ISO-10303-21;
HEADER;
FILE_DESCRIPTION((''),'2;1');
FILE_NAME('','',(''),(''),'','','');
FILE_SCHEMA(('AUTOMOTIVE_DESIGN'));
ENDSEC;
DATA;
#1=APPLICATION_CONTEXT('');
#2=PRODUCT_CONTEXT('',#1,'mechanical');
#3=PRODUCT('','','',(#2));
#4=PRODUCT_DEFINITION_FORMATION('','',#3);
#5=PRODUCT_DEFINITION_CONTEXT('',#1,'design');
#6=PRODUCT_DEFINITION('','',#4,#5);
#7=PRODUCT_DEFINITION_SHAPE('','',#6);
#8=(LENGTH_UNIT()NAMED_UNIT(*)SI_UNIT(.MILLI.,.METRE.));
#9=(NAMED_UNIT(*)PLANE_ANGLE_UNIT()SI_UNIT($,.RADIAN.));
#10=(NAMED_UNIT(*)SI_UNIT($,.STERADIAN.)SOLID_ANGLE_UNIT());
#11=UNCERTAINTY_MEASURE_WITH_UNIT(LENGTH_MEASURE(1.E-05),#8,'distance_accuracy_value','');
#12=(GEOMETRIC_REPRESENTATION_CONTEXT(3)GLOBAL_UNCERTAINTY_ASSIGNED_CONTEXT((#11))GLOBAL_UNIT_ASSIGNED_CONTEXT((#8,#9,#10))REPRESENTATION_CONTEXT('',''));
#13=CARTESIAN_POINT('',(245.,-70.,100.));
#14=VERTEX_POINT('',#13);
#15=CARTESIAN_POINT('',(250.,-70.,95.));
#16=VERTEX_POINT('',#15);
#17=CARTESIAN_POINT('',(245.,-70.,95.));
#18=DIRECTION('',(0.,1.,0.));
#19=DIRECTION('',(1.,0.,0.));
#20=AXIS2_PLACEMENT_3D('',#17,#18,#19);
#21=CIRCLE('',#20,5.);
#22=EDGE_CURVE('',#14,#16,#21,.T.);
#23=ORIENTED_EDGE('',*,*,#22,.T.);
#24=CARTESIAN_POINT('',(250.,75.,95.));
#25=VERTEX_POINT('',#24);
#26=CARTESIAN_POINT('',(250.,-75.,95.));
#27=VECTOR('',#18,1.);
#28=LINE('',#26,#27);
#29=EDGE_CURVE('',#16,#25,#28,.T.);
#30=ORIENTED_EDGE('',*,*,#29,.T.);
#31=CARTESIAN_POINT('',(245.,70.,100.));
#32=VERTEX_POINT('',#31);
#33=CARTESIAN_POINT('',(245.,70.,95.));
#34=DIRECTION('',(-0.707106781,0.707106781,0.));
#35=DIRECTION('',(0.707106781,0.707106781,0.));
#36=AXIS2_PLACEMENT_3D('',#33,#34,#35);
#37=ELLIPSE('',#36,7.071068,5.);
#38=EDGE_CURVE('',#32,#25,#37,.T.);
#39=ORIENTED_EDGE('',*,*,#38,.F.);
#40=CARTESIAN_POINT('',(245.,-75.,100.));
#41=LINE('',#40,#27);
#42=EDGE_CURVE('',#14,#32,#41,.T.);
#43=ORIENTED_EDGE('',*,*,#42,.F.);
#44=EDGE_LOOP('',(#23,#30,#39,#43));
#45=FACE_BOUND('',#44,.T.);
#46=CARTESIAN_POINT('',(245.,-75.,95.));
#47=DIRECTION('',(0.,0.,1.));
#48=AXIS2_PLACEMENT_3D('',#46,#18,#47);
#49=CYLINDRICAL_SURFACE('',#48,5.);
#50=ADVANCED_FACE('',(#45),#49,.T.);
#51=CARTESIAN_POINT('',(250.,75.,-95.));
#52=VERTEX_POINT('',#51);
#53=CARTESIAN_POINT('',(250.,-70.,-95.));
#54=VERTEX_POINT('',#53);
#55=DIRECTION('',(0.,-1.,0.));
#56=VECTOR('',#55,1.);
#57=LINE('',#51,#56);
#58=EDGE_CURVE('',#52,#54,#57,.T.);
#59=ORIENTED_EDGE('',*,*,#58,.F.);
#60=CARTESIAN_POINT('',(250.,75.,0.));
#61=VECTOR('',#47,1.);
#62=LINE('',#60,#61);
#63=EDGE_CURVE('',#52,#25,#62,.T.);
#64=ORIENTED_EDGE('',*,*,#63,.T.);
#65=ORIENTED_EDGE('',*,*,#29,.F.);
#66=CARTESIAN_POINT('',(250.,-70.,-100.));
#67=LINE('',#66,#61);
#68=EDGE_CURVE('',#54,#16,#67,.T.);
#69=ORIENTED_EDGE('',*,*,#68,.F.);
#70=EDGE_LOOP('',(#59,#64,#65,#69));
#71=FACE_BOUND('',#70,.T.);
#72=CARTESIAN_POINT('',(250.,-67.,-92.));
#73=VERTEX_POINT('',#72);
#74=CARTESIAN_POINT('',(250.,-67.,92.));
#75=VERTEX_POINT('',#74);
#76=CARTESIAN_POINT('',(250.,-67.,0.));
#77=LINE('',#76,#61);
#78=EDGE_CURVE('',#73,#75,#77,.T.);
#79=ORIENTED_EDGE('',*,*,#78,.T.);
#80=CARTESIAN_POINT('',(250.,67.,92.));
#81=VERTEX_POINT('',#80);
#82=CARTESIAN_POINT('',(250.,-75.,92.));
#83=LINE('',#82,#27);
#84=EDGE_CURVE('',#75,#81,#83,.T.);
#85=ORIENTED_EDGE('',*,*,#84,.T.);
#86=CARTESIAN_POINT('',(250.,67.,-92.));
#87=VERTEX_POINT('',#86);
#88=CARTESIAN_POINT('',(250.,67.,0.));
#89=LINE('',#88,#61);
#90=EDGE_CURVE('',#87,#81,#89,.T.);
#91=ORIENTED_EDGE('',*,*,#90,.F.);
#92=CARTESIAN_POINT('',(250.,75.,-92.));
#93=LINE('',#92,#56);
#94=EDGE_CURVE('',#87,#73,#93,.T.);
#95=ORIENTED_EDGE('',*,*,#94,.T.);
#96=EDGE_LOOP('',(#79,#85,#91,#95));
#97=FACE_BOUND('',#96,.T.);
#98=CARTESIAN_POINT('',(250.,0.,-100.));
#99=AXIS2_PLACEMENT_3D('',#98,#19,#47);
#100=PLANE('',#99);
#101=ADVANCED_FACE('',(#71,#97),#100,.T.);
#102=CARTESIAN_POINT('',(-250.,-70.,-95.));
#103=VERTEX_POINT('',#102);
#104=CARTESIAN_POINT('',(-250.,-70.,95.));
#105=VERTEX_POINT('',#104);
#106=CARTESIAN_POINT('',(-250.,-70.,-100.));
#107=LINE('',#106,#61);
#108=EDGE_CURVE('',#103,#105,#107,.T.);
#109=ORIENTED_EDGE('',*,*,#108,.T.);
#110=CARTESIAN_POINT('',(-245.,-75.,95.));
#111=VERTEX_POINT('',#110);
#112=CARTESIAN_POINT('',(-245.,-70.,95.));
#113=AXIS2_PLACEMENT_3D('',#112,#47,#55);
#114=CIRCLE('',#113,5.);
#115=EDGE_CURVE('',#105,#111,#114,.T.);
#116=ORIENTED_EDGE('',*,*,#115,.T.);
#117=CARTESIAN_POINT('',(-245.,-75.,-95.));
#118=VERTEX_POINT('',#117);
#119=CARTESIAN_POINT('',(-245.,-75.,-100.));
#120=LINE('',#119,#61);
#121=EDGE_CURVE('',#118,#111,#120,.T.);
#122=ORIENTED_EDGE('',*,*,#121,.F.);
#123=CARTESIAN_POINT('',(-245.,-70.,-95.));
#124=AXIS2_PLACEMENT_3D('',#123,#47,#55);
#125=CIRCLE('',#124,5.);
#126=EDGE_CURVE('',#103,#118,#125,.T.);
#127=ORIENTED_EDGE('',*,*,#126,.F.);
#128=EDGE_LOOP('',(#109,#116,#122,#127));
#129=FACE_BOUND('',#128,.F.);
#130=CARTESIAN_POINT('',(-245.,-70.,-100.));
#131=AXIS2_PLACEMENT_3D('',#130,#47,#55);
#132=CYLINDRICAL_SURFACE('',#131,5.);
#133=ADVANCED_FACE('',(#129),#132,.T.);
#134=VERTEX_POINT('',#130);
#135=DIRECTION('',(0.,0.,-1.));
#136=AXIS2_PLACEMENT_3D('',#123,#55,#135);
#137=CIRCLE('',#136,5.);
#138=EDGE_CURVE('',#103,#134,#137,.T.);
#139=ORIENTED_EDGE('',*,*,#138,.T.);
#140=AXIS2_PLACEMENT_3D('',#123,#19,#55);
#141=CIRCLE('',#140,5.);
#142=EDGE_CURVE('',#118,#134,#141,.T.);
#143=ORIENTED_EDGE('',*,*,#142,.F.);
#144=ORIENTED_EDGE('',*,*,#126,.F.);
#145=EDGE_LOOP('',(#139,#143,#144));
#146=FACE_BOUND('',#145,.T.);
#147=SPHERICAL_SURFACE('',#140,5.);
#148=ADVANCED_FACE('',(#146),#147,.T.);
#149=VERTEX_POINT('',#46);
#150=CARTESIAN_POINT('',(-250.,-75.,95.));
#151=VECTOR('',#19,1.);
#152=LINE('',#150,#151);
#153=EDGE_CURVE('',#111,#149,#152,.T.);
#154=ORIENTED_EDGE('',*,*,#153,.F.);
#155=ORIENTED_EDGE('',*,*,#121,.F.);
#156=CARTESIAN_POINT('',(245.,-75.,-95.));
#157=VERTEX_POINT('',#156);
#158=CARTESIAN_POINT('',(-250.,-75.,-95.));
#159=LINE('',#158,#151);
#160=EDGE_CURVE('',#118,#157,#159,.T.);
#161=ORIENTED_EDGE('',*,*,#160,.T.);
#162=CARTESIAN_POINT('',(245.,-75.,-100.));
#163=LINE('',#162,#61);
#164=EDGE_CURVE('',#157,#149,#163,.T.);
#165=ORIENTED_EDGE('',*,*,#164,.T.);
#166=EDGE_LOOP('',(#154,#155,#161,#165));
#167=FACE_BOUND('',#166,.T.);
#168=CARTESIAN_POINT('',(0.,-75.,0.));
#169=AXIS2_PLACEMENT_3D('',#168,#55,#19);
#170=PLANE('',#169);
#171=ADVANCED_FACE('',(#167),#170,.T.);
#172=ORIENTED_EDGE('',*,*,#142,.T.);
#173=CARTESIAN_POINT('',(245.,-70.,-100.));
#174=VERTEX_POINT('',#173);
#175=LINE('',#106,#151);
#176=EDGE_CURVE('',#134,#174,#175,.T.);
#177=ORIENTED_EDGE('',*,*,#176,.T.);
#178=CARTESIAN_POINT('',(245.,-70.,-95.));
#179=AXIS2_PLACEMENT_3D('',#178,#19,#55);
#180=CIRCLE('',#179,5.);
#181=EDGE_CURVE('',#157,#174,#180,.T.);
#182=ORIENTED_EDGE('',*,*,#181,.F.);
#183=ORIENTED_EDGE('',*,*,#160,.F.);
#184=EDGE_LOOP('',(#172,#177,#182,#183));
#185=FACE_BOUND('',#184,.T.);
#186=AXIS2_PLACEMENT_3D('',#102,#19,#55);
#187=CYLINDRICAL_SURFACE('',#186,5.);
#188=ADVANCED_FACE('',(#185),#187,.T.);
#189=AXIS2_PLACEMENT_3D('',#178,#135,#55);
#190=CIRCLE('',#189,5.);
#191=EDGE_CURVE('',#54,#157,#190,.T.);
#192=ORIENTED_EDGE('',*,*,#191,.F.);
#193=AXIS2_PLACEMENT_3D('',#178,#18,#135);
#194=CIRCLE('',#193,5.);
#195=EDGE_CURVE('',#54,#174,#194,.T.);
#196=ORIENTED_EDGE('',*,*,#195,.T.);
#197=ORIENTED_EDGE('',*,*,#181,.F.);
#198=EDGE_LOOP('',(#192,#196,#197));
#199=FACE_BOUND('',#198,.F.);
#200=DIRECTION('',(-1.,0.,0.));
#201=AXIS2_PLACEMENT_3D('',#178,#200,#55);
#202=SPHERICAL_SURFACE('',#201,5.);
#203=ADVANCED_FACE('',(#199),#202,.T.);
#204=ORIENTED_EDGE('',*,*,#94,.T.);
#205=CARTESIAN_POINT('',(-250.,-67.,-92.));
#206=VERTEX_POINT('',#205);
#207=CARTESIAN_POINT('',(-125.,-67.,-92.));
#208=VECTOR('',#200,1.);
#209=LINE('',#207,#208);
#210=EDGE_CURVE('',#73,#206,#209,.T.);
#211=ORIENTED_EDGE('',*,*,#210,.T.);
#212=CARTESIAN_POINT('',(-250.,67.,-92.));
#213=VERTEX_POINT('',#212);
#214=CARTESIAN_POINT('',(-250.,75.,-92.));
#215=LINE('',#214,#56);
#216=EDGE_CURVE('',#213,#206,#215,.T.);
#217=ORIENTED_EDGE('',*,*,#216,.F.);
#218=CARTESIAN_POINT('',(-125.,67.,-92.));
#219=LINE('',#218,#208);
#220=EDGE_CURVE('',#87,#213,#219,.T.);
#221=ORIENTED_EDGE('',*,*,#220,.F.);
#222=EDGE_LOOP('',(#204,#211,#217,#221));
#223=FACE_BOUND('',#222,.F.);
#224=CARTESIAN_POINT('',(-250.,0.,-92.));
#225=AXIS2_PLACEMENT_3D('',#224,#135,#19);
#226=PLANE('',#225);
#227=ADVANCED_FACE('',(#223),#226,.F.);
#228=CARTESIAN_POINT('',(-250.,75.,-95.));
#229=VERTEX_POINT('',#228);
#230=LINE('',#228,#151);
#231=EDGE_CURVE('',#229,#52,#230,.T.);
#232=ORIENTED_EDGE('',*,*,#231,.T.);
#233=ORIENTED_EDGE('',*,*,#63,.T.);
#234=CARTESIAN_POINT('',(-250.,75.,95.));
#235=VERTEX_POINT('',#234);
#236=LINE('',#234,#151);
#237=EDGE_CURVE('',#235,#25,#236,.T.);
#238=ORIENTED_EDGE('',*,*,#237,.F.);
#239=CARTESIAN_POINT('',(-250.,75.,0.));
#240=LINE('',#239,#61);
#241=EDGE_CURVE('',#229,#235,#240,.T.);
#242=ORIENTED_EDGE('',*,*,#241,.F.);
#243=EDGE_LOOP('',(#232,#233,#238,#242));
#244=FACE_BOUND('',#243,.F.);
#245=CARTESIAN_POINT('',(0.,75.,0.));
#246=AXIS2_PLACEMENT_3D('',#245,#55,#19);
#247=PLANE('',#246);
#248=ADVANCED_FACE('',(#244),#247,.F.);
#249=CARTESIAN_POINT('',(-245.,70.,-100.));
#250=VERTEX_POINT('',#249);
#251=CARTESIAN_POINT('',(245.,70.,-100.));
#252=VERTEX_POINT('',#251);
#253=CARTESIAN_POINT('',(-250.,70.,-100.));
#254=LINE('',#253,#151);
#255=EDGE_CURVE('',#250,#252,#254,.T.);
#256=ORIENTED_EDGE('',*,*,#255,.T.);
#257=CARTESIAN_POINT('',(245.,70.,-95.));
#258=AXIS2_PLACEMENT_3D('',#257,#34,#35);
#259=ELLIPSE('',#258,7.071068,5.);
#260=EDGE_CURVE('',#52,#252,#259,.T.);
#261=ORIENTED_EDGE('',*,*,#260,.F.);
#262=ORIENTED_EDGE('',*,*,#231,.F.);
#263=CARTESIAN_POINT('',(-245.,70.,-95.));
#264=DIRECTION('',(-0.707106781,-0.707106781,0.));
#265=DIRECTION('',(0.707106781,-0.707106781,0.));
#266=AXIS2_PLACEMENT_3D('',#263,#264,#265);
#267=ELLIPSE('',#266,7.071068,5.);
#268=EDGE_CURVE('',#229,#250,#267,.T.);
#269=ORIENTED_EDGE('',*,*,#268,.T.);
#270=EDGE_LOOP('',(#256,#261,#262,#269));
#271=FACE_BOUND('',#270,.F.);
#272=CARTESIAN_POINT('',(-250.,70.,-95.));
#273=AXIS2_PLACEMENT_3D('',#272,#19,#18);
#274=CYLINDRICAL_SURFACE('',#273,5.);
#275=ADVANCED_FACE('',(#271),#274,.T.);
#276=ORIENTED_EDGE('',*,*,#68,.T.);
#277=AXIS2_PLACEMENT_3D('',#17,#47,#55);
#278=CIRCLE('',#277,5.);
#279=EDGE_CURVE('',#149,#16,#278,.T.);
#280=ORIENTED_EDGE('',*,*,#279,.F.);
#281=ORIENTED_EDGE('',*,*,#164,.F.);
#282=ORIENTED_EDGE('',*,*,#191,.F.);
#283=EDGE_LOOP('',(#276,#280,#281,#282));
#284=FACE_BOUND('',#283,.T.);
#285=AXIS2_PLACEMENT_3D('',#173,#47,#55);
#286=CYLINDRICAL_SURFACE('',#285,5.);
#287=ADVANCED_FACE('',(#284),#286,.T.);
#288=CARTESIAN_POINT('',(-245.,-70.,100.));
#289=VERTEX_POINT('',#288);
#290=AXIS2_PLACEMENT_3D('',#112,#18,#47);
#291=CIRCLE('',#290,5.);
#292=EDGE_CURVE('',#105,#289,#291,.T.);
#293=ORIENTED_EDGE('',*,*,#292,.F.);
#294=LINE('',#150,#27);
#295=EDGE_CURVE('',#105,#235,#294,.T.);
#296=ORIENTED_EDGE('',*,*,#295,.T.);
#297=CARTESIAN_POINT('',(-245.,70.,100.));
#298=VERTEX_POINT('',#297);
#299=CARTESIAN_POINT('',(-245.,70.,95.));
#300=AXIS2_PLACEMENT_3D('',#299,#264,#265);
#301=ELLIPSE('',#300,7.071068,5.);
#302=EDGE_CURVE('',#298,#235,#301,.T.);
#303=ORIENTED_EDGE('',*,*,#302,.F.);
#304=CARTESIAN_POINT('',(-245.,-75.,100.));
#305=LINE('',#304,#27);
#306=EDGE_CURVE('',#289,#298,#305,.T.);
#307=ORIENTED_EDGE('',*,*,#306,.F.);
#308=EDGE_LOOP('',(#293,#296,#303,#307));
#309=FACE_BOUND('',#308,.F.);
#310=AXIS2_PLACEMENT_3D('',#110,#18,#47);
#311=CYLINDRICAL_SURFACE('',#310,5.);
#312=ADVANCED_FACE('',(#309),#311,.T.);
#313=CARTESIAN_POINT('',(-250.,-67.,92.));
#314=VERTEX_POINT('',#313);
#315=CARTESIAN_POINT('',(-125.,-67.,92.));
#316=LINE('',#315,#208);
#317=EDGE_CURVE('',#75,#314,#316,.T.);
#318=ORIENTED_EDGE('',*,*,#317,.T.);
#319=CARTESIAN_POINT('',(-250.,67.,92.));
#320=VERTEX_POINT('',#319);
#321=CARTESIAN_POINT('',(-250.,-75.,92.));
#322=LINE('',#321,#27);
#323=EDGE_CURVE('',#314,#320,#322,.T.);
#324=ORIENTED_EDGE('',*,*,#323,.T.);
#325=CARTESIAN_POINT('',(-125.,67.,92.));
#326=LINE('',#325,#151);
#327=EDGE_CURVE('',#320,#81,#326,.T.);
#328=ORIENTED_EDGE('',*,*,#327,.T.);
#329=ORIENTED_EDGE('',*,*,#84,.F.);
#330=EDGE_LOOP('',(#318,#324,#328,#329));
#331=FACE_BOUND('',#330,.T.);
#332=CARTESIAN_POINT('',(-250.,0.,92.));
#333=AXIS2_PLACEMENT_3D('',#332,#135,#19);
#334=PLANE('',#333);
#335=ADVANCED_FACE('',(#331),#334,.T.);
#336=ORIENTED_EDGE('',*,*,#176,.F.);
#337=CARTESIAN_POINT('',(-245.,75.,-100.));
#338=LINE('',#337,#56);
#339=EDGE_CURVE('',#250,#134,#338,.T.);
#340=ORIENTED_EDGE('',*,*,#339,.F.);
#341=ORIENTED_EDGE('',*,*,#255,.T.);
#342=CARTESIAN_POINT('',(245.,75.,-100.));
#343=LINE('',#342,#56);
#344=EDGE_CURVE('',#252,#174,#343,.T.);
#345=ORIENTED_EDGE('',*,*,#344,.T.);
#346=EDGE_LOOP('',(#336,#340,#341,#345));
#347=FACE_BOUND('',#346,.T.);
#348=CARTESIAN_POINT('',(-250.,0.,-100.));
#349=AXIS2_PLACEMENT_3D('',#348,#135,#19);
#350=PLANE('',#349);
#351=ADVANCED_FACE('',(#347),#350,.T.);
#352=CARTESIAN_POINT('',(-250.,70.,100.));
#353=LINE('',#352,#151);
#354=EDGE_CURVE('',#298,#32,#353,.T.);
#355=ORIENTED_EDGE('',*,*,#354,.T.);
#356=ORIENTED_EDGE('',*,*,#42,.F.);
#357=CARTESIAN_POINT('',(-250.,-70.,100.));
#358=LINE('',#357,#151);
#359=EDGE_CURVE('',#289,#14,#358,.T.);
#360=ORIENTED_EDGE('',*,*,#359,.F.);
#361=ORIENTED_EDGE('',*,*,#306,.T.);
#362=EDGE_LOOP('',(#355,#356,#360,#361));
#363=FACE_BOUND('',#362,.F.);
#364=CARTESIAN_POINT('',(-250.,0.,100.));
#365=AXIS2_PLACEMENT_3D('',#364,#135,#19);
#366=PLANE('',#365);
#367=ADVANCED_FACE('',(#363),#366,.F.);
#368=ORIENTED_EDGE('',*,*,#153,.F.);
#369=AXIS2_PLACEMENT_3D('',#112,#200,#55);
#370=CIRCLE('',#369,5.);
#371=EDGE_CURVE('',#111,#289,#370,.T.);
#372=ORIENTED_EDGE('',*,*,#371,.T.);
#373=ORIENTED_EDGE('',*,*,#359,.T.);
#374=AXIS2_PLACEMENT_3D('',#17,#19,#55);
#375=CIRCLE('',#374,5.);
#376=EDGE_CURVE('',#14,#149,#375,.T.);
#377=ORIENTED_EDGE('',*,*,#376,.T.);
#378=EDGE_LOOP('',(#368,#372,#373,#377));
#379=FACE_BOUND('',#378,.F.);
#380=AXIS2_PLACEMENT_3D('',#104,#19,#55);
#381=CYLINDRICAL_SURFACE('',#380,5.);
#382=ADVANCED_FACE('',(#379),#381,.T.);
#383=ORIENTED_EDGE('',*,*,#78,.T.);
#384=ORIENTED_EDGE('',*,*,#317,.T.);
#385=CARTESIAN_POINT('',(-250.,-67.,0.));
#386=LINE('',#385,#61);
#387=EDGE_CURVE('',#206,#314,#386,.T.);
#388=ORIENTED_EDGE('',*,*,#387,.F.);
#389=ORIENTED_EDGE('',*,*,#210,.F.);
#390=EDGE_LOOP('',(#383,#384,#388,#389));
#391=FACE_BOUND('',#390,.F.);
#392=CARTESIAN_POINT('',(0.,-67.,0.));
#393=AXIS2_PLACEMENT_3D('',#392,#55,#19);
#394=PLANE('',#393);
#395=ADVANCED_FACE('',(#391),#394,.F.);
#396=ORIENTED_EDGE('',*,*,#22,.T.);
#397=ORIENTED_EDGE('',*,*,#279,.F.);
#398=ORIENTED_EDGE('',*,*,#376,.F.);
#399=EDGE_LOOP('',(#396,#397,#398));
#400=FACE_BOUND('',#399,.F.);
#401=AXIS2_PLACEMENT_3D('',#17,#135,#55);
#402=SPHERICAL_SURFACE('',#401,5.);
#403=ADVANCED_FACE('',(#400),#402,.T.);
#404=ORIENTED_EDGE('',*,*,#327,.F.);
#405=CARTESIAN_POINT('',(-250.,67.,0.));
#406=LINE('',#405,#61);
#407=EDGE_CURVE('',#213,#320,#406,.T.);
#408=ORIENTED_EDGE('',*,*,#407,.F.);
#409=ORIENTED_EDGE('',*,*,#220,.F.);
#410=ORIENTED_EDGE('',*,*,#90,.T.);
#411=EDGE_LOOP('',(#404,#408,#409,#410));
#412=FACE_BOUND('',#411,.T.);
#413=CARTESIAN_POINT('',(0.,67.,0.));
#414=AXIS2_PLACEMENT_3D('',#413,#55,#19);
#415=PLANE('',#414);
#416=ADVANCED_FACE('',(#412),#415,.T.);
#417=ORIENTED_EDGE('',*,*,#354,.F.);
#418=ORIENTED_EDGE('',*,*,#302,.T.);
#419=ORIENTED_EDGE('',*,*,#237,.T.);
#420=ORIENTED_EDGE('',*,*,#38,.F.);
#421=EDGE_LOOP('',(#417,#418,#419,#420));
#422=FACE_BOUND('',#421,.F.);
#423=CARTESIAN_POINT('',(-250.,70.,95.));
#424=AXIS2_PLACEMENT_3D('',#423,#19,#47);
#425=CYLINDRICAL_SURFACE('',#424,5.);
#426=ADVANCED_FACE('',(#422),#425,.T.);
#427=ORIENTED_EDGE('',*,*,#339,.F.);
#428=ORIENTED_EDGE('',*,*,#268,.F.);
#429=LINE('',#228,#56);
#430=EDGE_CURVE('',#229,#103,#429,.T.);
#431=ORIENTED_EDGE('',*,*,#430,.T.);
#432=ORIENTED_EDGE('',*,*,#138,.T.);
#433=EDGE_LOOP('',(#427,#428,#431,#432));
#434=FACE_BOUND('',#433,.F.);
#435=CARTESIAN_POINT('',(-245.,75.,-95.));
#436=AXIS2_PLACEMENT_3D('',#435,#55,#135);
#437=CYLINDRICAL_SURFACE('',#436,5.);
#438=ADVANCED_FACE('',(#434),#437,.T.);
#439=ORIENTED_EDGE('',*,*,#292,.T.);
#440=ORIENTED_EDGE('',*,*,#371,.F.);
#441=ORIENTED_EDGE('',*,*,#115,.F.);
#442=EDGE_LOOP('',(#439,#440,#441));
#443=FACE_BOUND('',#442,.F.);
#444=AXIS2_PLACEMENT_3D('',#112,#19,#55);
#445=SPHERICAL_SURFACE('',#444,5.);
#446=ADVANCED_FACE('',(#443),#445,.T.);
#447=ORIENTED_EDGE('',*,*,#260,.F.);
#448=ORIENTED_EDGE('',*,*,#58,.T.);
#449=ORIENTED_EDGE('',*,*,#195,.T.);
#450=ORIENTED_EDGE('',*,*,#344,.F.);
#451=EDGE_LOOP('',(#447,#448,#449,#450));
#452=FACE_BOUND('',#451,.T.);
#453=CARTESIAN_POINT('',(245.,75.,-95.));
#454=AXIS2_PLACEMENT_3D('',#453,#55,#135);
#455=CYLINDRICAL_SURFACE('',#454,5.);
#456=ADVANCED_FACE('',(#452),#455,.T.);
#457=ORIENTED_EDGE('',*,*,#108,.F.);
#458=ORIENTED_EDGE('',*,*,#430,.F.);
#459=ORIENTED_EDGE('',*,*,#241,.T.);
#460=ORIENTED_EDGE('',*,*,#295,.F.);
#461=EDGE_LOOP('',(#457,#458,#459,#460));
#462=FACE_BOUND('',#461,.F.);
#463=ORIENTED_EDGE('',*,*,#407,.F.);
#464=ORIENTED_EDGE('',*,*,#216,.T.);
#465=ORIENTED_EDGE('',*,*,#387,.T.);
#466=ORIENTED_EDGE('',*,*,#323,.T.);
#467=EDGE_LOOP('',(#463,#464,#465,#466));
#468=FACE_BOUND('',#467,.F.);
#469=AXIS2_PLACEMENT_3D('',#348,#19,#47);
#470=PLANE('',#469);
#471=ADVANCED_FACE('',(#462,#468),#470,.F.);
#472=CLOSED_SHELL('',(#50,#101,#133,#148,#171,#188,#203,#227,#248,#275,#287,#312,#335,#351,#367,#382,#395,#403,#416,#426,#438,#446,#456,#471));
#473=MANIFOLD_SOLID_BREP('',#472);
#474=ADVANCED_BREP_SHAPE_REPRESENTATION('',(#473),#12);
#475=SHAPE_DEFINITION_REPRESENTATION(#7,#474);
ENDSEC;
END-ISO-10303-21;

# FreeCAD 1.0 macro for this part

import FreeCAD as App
import Part
import Sketcher
Q = App.Units.Quantity


def edges_at(feature, points):
    """Names of the edges that pass closest to the given points."""
    edges = feature.Shape.Edges
    near = lambda p: min(range(len(edges)), key=lambda i: edges[i].distToShape(Part.Vertex(*p))[0])
    return sorted({f"Edge{near(p) + 1}" for p in points})


def faces_at(feature, points):
    """Names of the faces that lie closest to the given points."""
    faces = feature.Shape.Faces
    near = lambda p: min(range(len(faces)), key=lambda i: faces[i].distToShape(Part.Vertex(*p))[0])
    return sorted({f"Face{near(p) + 1}" for p in points})


def add_polygon(sketch, points):
    """Adds a closed chain of lines whose ends are joined by coincident constraints."""
    first, n = sketch.GeometryCount, len(points)
    for a, b in zip(points, points[1:] + points[:1]):
        sketch.addGeometry(Part.LineSegment(App.Vector(*a, 0), App.Vector(*b, 0)), False)
    for i in range(n):
        sketch.addConstraint(Sketcher.Constraint("Coincident", first + i, 2, first + (i + 1) % n, 1))

doc = App.newDocument("Part")
body = doc.addObject("PartDesign::Body", "Body")

# Sketch on XZ plane
sketch1 = doc.addObject("Sketcher::SketchObject", "Sketch")
body.addObject(sketch1)
sketch1.AttachmentSupport = (doc.XZ_Plane, [""])
sketch1.MapMode = "FlatFace"
add_polygon(sketch1, [(-250, 100), (-250, -100), (250, -100), (250, 100)])  # lines 0-3
sketch1.addConstraint([
    Sketcher.Constraint("Vertical", 0),
    Sketcher.Constraint("Horizontal", 1),
    Sketcher.Constraint("Vertical", 2),
    Sketcher.Constraint("Horizontal", 3),
    Sketcher.Constraint("Symmetric", 0, 2, 2, 2, -1, 1),
    Sketcher.Constraint("DistanceX", 1, 1, 1, 2, Q("500 mm")),
    Sketcher.Constraint("DistanceY", 0, 2, 0, 1, Q("200 mm")),
])
pad1 = doc.addObject("PartDesign::Pad", "Pad")
body.addObject(pad1)
pad1.Profile = sketch1
pad1.Length = 150
pad1.Midplane = True
doc.recompute()

thickness = doc.addObject("PartDesign::Thickness", "Thickness")
body.addObject(thickness)
thickness.Base = (pad1, faces_at(pad1, [(250, 0, 0), (-250, 0, 0)]))
thickness.Value = 8
thickness.Reversed = True
thickness.Join = "Arc"
doc.recompute()

fillet = doc.addObject("PartDesign::Fillet", "Fillet")
body.addObject(fillet)
fillet.Base = (thickness, edges_at(thickness, [
    (0, 75, 100),
    (0, -75, -100),
    (250, -75, 0),
    (0, -75, 100),
    (-250, -75, 0),
    (250, 0, 100),
    (-250, 0, 100),
    (0, 75, -100),
    (250, 0, -100),
    (-250, 0, -100),
]))
fillet.Radius = 5

doc.recompute()
